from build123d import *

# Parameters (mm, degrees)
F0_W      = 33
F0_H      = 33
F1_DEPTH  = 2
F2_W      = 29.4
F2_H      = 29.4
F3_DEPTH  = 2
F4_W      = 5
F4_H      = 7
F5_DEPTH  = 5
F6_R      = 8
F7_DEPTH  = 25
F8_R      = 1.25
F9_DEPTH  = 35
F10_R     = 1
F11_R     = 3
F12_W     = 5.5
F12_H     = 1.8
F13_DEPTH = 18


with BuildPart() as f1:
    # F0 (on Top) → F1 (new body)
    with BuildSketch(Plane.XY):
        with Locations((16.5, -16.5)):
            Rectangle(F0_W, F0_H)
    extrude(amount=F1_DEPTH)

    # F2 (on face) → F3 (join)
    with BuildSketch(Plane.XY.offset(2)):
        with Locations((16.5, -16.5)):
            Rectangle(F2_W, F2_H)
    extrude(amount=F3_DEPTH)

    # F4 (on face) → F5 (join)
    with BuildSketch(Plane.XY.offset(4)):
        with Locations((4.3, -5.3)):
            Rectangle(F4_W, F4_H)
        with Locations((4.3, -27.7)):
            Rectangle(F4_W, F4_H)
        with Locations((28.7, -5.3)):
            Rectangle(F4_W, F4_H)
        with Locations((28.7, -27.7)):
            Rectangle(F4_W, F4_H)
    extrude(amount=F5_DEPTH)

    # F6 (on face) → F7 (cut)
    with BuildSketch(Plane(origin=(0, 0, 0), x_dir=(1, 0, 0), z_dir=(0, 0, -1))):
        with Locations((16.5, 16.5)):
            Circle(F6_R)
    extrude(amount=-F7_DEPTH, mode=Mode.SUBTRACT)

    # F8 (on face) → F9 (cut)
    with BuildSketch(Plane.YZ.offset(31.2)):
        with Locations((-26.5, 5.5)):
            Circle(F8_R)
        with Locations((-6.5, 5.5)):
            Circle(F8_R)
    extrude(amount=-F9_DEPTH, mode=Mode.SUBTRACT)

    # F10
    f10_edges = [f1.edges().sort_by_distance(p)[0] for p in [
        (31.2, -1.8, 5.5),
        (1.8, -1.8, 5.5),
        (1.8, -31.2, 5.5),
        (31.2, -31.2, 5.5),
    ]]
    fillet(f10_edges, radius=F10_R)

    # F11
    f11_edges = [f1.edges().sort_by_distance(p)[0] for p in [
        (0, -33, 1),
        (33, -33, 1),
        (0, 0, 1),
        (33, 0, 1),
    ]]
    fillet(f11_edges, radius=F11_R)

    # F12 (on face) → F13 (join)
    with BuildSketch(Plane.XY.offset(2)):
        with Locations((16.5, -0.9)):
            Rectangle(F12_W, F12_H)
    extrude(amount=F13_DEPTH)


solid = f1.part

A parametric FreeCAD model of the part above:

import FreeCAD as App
import Part
import Sketcher
Q = App.Units.Quantity


def edges_at(feature, points):
    """Names of the edges that pass closest to the given points."""
    edges = feature.Shape.Edges
    near = lambda p: min(range(len(edges)), key=lambda i: edges[i].distToShape(Part.Vertex(*p))[0])
    return sorted({f"Edge{near(p) + 1}" for p in points})


def add_polygon(sketch, points):
    """Adds a closed chain of lines whose ends are joined by coincident constraints."""
    first, n = sketch.GeometryCount, len(points)
    for a, b in zip(points, points[1:] + points[:1]):
        sketch.addGeometry(Part.LineSegment(App.Vector(*a, 0), App.Vector(*b, 0)), False)
    for i in range(n):
        sketch.addConstraint(Sketcher.Constraint("Coincident", first + i, 2, first + (i + 1) % n, 1))

doc = App.newDocument("Part")
body = doc.addObject("PartDesign::Body", "Body")

# Sketch on XY plane
sketch1 = body.newObject("Sketcher::SketchObject", "Sketch")
sketch1.AttachmentSupport = (doc.getObject("XY_Plane"), [""])
sketch1.MapMode = "FlatFace"
add_polygon(sketch1, [(0, 0), (0, -33), (33, -33), (33, 0)])  # lines 0-3
sketch1.addConstraint([
    Sketcher.Constraint("Vertical", 0),
    Sketcher.Constraint("Horizontal", 1),
    Sketcher.Constraint("Vertical", 2),
    Sketcher.Constraint("Horizontal", 3),
    Sketcher.Constraint("Coincident", 3, 2, -1, 1),
    Sketcher.Constraint("Equal", 3, 0),
    Sketcher.Constraint("DistanceX", 1, 1, 1, 2, Q("33 mm")),
])
pad1 = body.newObject("PartDesign::Pad", "Pad")
pad1.Profile = sketch1
pad1.Length = 2

# Sketch on XY plane
sketch2 = body.newObject("Sketcher::SketchObject", "Sketch001")
sketch2.AttachmentSupport = (doc.getObject("XY_Plane"), [""])
sketch2.MapMode = "FlatFace"
sketch2.AttachmentOffset = App.Placement(App.Vector(0, 0, 2), App.Rotation())
add_polygon(sketch2, [(2, -2), (2, -31), (31, -31), (31, -2)])  # lines 0-3
sketch2.addConstraint([
    Sketcher.Constraint("Vertical", 0),
    Sketcher.Constraint("Horizontal", 1),
    Sketcher.Constraint("Vertical", 2),
    Sketcher.Constraint("Horizontal", 3),
    Sketcher.Constraint("Equal", 3, 0),
    Sketcher.Constraint("DistanceX", 1, 1, 1, 2, Q("29.4 mm")),
    Sketcher.Constraint("DistanceX", -1, 1, 0, 2, Q("1.8 mm")),
    Sketcher.Constraint("DistanceY", 0, 2, -1, 1, Q("31.2 mm")),
])
pad2 = body.newObject("PartDesign::Pad", "Pad001")
pad2.Profile = sketch2
pad2.Length = 2

# Sketch on XY plane
sketch3 = body.newObject("Sketcher::SketchObject", "Sketch002")
sketch3.AttachmentSupport = (doc.getObject("XY_Plane"), [""])
sketch3.MapMode = "FlatFace"
sketch3.AttachmentOffset = App.Placement(App.Vector(0, 0, 4), App.Rotation())
add_polygon(sketch3, [(2, -2), (2, -9), (7, -9), (7, -2)])  # lines 0-3
add_polygon(sketch3, [(2, -24), (2, -31), (7, -31), (7, -24)])  # lines 4-7
add_polygon(sketch3, [(26, -2), (26, -9), (31, -9), (31, -2)])  # lines 8-11
add_polygon(sketch3, [(26, -24), (26, -31), (31, -31), (31, -24)])  # lines 12-15
sketch3.addConstraint([
    Sketcher.Constraint("Vertical", 0),
    Sketcher.Constraint("Horizontal", 1),
    Sketcher.Constraint("Vertical", 2),
    Sketcher.Constraint("Horizontal", 3),
    Sketcher.Constraint("Vertical", 4),
    Sketcher.Constraint("Horizontal", 5),
    Sketcher.Constraint("Vertical", 6),
    Sketcher.Constraint("Horizontal", 7),
    Sketcher.Constraint("Vertical", 8),
    Sketcher.Constraint("Horizontal", 9),
    Sketcher.Constraint("Vertical", 10),
    Sketcher.Constraint("Horizontal", 11),
    Sketcher.Constraint("Vertical", 12),
    Sketcher.Constraint("Horizontal", 13),
    Sketcher.Constraint("Vertical", 14),
    Sketcher.Constraint("Horizontal", 15),
    Sketcher.Constraint("Horizontal", 1, 2, 8, 2),
    Sketcher.Constraint("Horizontal", 3, 2, 10, 2),
    Sketcher.Constraint("Horizontal", 5, 2, 12, 2),
    Sketcher.Constraint("Horizontal", 7, 2, 14, 2),
    Sketcher.Constraint("Vertical", 3, 2, 4, 2),
    Sketcher.Constraint("Vertical", 2, 2, 5, 2),
    Sketcher.Constraint("Vertical", 11, 2, 12, 2),
    Sketcher.Constraint("Vertical", 10, 2, 13, 2),
    Sketcher.Constraint("Equal", 7, 9),
    Sketcher.Constraint("Equal", 2, 4),
    Sketcher.Constraint("DistanceX", 1, 1, 1, 2, Q("5 mm")),
    Sketcher.Constraint("DistanceY", 0, 2, 0, 1, Q("7 mm")),
    Sketcher.Constraint("DistanceX", -1, 1, 0, 2, Q("1.8 mm")),
    Sketcher.Constraint("DistanceY", 0, 2, -1, 1, Q("8.8 mm")),
    Sketcher.Constraint("DistanceY", 4, 2, -1, 1, Q("31.2 mm")),
    Sketcher.Constraint("DistanceX", -1, 1, 8, 2, Q("26.2 mm")),
])
pad3 = body.newObject("PartDesign::Pad", "Pad002")
pad3.Profile = sketch3
pad3.Length = 5

# Sketch on XY plane
sketch4 = body.newObject("Sketcher::SketchObject", "Sketch003")
sketch4.AttachmentSupport = (doc.getObject("XY_Plane"), [""])
sketch4.MapMode = "FlatFace"
sketch4.addGeometry(Part.Circle(App.Vector(16, -16, 0), App.Vector(0, 0, 1), 8), False)
sketch4.addConstraint([
    Sketcher.Constraint("Diameter", 0, Q("16 mm")),
    Sketcher.Constraint("DistanceX", -1, 1, 0, 3, Q("16.5 mm")),
    Sketcher.Constraint("DistanceY", 0, 3, -1, 1, Q("16.5 mm")),
])
pocket1 = body.newObject("PartDesign::Pocket", "Pocket")
pocket1.Profile = sketch4
pocket1.Length = 25
pocket1.Reversed = True

# Sketch on YZ plane
sketch5 = body.newObject("Sketcher::SketchObject", "Sketch004")
sketch5.AttachmentSupport = (doc.getObject("YZ_Plane"), [""])
sketch5.MapMode = "FlatFace"
sketch5.AttachmentOffset = App.Placement(App.Vector(0, 0, 31.2), App.Rotation())
sketch5.addGeometry([
    Part.Circle(App.Vector(-26.5, 5.5, 0), App.Vector(0, 0, 1), 1.2),
    Part.Circle(App.Vector(-6.5, 5.5, 0), App.Vector(0, 0, 1), 1.2),
], False)
sketch5.addConstraint([
    Sketcher.Constraint("Equal", 0, 1),
    Sketcher.Constraint("Horizontal", 0, 3, 1, 3),
    Sketcher.Constraint("Diameter", 0, Q("2.5 mm")),
    Sketcher.Constraint("DistanceX", 0, 3, 1, 3, Q("20 mm")),
    Sketcher.Constraint("DistanceX", 0, 3, -1, 1, Q("26.5 mm")),
    Sketcher.Constraint("DistanceY", -1, 1, 0, 3, Q("5.5 mm")),
])
pocket2 = body.newObject("PartDesign::Pocket", "Pocket001")
pocket2.Profile = sketch5
pocket2.Length = 35
doc.recompute()

fillet = body.newObject("PartDesign::Fillet", "Fillet")
fillet.Base = (pocket2, edges_at(pocket2, [
    (31.2, -1.8, 5.5),
    (1.8, -1.8, 5.5),
    (1.8, -31.2, 5.5),
    (31.2, -31.2, 5.5),
]))
fillet.Radius = 1
doc.recompute()

fillet2 = body.newObject("PartDesign::Fillet", "Fillet001")
fillet2.Base = (fillet, edges_at(fillet, [
    (0, -33, 1),
    (33, -33, 1),
    (0, 0, 1),
    (33, 0, 1),
]))
fillet2.Radius = 3

# Sketch on XY plane
sketch6 = body.newObject("Sketcher::SketchObject", "Sketch005")
sketch6.AttachmentSupport = (doc.getObject("XY_Plane"), [""])
sketch6.MapMode = "FlatFace"
sketch6.AttachmentOffset = App.Placement(App.Vector(0, 0, 2), App.Rotation())
add_polygon(sketch6, [(13.8, 0), (13.8, -1.8), (19.2, -1.8), (19.2, 0)])  # lines 0-3
sketch6.addConstraint([
    Sketcher.Constraint("Vertical", 0),
    Sketcher.Constraint("Horizontal", 1),
    Sketcher.Constraint("Vertical", 2),
    Sketcher.Constraint("Horizontal", 3),
    Sketcher.Constraint("PointOnObject", 2, 2, -1),
    Sketcher.Constraint("DistanceX", 1, 1, 1, 2, Q("5.5 mm")),
    Sketcher.Constraint("DistanceY", 0, 2, 0, 1, Q("1.8 mm")),
    Sketcher.Constraint("DistanceX", -1, 1, 0, 2, Q("13.75 mm")),
])
pad4 = body.newObject("PartDesign::Pad", "Pad003")
pad4.Profile = sketch6
pad4.Length = 18

doc.recompute()
